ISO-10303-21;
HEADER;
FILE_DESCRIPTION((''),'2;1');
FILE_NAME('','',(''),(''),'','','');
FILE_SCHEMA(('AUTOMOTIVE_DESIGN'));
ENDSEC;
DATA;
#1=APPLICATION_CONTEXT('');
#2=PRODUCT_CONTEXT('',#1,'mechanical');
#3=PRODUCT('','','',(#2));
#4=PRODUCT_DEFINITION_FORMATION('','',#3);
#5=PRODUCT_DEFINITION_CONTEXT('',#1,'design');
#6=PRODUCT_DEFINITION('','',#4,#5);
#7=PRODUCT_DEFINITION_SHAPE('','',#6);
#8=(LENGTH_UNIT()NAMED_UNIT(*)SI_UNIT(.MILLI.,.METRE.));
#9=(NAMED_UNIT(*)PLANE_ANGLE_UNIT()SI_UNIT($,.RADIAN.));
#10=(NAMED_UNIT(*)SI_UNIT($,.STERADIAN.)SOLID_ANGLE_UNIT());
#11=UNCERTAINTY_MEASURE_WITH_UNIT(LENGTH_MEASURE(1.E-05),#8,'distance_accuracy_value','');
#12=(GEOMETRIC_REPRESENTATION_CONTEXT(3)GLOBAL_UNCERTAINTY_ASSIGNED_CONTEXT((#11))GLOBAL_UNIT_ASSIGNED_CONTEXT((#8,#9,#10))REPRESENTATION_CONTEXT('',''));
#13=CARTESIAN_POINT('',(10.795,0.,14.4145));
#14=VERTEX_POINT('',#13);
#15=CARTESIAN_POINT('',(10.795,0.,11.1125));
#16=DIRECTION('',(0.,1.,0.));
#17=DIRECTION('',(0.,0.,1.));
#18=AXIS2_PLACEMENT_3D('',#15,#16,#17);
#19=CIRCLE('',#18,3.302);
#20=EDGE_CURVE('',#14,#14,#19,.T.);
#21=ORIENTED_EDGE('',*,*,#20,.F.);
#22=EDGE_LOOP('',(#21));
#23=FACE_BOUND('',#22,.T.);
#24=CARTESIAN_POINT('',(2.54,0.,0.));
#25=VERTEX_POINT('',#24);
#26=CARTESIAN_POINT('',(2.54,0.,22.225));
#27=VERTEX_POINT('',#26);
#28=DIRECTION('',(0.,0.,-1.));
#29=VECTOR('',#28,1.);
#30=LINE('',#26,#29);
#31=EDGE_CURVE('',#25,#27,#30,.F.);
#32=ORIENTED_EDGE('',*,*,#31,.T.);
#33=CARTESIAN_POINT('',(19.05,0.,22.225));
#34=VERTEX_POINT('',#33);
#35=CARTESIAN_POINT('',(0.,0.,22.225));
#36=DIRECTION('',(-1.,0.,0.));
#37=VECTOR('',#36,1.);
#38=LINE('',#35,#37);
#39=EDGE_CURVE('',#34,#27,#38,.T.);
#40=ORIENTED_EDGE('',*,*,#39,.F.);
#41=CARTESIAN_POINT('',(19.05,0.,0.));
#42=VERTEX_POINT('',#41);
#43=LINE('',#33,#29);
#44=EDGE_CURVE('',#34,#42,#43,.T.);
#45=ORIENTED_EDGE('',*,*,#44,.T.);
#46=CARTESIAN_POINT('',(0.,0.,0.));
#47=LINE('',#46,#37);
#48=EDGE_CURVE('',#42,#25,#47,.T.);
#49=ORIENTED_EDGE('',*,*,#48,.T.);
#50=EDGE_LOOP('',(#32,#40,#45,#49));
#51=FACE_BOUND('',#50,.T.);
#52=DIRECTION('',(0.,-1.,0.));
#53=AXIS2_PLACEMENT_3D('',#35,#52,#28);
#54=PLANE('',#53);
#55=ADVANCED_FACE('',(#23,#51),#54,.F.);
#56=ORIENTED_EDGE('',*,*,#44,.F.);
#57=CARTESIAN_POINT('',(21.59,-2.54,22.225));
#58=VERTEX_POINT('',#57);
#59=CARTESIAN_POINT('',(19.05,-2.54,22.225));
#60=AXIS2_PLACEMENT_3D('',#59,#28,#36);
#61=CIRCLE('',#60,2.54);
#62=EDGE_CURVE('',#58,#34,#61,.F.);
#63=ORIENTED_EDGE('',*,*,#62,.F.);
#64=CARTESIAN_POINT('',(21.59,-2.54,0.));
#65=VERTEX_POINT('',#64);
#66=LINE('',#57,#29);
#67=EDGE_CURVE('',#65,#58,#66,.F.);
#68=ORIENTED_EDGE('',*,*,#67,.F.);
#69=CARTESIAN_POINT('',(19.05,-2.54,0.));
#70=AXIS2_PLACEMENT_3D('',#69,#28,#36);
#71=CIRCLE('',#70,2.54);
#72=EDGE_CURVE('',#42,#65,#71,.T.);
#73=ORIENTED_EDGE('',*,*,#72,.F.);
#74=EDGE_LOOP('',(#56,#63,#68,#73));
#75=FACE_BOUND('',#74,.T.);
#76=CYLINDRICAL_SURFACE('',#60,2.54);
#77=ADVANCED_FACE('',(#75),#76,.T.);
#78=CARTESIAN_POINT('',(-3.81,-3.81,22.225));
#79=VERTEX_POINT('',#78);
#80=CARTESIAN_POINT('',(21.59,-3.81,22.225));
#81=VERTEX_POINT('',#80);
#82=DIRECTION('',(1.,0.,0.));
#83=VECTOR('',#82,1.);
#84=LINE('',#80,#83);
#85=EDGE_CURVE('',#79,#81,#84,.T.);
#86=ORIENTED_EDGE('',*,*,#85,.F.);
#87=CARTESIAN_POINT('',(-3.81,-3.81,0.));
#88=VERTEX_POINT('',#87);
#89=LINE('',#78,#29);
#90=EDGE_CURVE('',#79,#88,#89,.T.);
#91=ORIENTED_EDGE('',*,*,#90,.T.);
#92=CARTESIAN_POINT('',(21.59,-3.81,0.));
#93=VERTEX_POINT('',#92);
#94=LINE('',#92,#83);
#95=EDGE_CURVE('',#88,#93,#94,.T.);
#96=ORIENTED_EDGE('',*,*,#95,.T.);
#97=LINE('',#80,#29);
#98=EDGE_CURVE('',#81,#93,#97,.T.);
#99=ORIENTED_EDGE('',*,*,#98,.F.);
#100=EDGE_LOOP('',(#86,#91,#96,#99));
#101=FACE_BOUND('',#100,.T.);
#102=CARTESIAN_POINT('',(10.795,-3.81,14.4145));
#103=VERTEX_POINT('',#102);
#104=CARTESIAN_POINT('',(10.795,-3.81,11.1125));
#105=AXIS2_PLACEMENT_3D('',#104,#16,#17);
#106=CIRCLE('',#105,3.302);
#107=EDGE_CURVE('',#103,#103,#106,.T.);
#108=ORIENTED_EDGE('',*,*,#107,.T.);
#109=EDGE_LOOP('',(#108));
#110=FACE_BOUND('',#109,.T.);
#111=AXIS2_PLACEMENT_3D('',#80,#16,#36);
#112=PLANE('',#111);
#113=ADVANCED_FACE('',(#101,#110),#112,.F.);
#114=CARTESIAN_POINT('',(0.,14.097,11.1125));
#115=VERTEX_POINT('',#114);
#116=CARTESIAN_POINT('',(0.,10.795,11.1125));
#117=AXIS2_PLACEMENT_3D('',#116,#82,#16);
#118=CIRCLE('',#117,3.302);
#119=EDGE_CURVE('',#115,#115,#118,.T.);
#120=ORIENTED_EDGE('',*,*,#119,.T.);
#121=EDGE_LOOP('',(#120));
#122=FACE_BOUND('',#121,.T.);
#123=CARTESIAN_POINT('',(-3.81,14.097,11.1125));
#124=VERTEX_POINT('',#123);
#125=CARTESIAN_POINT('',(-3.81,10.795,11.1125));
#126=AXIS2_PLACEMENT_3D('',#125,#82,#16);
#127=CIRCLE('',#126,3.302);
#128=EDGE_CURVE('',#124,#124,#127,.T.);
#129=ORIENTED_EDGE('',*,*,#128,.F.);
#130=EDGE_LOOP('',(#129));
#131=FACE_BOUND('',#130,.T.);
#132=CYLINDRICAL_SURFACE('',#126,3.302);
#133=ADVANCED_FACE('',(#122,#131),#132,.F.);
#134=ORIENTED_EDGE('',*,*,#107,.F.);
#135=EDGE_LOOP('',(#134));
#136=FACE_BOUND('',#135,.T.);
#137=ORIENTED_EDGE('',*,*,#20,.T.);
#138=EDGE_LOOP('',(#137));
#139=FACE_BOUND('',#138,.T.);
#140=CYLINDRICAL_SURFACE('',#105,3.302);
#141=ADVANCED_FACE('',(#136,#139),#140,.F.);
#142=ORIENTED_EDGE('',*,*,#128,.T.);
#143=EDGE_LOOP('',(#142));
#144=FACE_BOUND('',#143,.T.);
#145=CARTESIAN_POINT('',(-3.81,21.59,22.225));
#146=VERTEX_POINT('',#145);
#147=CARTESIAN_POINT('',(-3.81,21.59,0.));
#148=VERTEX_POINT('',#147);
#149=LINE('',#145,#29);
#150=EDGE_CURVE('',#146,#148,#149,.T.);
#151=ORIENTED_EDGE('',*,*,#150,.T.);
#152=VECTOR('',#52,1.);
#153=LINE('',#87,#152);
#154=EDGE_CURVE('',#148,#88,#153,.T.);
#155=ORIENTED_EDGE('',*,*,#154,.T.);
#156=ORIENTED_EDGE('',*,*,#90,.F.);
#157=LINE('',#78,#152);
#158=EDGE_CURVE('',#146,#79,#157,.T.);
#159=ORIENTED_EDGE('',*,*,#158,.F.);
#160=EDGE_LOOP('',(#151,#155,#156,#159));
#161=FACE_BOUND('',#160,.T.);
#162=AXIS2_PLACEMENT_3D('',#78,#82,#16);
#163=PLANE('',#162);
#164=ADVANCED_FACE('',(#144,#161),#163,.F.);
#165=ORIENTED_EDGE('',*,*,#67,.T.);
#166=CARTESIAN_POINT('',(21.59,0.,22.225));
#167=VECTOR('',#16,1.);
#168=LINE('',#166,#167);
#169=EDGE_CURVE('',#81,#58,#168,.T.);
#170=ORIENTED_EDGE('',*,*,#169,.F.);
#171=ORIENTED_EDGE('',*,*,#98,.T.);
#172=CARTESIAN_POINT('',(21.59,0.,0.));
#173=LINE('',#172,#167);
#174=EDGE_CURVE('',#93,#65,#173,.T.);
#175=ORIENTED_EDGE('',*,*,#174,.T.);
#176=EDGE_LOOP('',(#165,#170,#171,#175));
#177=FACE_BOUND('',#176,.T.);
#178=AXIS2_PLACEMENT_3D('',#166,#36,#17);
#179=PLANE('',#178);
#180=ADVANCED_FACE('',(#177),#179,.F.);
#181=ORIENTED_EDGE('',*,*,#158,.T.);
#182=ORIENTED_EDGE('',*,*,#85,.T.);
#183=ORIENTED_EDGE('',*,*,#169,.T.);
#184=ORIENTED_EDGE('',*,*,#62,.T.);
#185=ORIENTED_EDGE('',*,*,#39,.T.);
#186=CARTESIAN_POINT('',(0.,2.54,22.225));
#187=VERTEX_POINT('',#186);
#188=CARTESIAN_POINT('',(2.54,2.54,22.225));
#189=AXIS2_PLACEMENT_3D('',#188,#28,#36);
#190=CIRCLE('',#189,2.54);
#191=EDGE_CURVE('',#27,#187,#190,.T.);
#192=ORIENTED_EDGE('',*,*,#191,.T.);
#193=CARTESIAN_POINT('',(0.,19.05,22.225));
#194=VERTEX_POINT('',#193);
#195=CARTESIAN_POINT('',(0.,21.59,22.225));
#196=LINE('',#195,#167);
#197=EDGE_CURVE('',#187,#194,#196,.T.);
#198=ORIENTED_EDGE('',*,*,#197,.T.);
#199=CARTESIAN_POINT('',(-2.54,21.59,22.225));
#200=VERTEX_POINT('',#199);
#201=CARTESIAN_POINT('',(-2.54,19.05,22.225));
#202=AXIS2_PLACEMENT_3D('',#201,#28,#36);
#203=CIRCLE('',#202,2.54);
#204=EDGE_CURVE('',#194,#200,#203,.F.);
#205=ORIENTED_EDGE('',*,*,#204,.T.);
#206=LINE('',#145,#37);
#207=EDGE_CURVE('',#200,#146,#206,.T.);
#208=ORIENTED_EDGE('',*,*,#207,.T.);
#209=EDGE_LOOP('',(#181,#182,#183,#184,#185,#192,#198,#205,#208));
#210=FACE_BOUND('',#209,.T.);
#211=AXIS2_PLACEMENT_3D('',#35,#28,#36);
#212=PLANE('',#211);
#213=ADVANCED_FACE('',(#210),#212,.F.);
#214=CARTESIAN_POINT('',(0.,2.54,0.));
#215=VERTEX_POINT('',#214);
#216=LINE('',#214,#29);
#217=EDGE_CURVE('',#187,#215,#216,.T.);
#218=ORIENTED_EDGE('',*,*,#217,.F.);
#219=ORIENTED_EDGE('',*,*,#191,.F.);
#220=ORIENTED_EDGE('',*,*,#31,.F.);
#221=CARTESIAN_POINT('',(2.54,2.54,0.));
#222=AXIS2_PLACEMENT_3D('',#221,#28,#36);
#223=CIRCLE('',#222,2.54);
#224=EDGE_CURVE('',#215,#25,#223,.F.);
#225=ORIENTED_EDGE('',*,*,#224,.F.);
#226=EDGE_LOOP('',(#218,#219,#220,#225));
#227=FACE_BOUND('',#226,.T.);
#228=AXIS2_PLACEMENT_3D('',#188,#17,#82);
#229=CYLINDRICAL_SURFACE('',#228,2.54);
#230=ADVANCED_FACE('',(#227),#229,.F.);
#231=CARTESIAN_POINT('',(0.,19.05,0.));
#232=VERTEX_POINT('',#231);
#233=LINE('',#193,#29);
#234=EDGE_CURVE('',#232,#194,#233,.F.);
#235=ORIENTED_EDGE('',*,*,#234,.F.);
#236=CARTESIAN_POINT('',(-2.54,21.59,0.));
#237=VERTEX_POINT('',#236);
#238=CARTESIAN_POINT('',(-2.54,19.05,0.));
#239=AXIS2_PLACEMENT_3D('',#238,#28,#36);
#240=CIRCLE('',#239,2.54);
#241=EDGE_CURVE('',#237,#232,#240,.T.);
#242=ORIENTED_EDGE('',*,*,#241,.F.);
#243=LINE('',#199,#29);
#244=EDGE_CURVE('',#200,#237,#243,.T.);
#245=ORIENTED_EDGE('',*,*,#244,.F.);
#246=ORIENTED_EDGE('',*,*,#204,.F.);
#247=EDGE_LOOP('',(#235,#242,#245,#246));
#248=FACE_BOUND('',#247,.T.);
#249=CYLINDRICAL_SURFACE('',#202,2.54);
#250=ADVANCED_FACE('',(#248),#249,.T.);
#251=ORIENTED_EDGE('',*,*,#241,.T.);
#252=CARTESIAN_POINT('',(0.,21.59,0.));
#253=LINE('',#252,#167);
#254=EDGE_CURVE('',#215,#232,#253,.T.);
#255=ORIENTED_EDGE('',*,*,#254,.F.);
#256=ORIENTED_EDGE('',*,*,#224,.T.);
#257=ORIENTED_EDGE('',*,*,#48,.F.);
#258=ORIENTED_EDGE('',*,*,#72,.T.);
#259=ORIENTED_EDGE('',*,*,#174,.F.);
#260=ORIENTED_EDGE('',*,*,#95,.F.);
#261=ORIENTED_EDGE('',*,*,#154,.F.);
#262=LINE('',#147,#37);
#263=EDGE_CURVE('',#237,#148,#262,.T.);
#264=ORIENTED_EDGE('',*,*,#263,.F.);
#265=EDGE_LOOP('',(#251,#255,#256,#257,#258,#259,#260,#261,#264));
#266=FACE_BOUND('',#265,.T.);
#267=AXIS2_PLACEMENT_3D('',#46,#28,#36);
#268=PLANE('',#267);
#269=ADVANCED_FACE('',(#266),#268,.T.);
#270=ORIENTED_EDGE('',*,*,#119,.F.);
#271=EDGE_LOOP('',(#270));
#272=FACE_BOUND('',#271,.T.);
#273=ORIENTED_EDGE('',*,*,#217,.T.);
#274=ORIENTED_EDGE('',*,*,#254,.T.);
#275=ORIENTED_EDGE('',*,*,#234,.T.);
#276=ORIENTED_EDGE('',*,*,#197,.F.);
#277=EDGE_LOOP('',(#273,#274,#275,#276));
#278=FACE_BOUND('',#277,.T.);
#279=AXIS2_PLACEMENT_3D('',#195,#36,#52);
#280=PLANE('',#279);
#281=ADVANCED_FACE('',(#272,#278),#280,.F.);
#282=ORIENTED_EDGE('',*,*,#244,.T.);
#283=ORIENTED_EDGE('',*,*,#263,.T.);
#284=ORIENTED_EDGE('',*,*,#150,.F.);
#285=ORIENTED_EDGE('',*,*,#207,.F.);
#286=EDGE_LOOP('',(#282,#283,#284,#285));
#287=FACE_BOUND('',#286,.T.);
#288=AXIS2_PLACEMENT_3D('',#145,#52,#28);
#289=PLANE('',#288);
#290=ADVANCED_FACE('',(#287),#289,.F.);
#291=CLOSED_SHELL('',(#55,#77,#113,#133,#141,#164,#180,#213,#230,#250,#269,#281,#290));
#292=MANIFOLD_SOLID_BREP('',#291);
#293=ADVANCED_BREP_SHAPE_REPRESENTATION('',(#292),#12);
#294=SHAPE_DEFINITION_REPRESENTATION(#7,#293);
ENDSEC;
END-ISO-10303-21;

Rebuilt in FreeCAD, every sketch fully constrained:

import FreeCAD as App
import Part
import Sketcher

V = App.Vector
Q = App.Units.Quantity


def edges_at(feature, points):
    """Names of the edges that pass closest to the given points."""
    edges = feature.Shape.Edges
    near = lambda p: min(range(len(edges)), key=lambda i: edges[i].distToShape(Part.Vertex(*p))[0])
    return sorted({f"Edge{near(p) + 1}" for p in points})


def add_polygon(sketch, points):
    """Adds a closed chain of lines whose ends are joined by coincident constraints."""
    first, n = sketch.GeometryCount, len(points)
    for a, b in zip(points, points[1:] + points[:1]):
        sketch.addGeometry(Part.LineSegment(App.Vector(*a, 0), App.Vector(*b, 0)), False)
    for i in range(n):
        sketch.addConstraint(Sketcher.Constraint("Coincident", first + i, 2, first + (i + 1) % n, 1))

doc = App.newDocument("Part")
body = doc.addObject("PartDesign::Body", "Body")

sketch1 = body.newObject("Sketcher::SketchObject", "Sketch")
sketch1.AttachmentSupport = (doc.getObject("XY_Plane"), [""])
sketch1.MapMode = "FlatFace"
add_polygon(sketch1, [(0, 0), (0, 21.59), (-3.81, 21.59), (-3.81, -3.81), (21.59, -3.81), (21.59, 0)])
sketch1.addConstraint(Sketcher.Constraint("Vertical", 0))
sketch1.addConstraint(Sketcher.Constraint("Horizontal", 1))
sketch1.addConstraint(Sketcher.Constraint("Vertical", 2))
sketch1.addConstraint(Sketcher.Constraint("Horizontal", 3))
sketch1.addConstraint(Sketcher.Constraint("Vertical", 4))
sketch1.addConstraint(Sketcher.Constraint("Horizontal", 5))
sketch1.addConstraint(Sketcher.Constraint("Coincident", 5, 2, -1, 1))
sketch1.addConstraint(Sketcher.Constraint("Equal", 5, 0))
sketch1.addConstraint(Sketcher.Constraint("Equal", 3, 2))
sketch1.addConstraint(Sketcher.Constraint("DistanceX", 3, 1, 3, 2, Q("1 in")))
sketch1.addConstraint(Sketcher.Constraint("DistanceX", 1, 2, 1, 1, Q("0.15 in")))
pad1 = body.newObject("PartDesign::Pad", "Pad")
pad1.Profile = sketch1
pad1.Length = Q("0.875 in")

sketch2 = body.newObject("Sketcher::SketchObject", "Sketch001")
sketch2.AttachmentSupport = (doc.getObject("XZ_Plane"), [""])
sketch2.MapMode = "FlatFace"
sketch2.addGeometry(Part.Circle(V(10.795, 11.1125, 0), V(0, 0, 1), 3.302), False)
sketch2.addConstraint(Sketcher.Constraint("Diameter", 0, Q("0.26 in")))
sketch2.addConstraint(Sketcher.Constraint("DistanceX", -1, 1, 0, 3, Q("0.425 in")))
sketch2.addConstraint(Sketcher.Constraint("DistanceY", -1, 1, 0, 3, Q("0.4375 in")))
pocket1 = body.newObject("PartDesign::Pocket", "Pocket")
pocket1.Profile = sketch2
pocket1.Type = "ThroughAll"
pocket1.Reversed = True

sketch3 = body.newObject("Sketcher::SketchObject", "Sketch002")
sketch3.AttachmentSupport = (doc.getObject("YZ_Plane"), [""])
sketch3.MapMode = "FlatFace"
sketch3.addGeometry(Part.Circle(V(10.795, 11.1125, 0), V(0, 0, 1), 3.302), False)
sketch3.addConstraint(Sketcher.Constraint("Diameter", 0, Q("0.26 in")))
sketch3.addConstraint(Sketcher.Constraint("DistanceX", -1, 1, 0, 3, Q("0.425 in")))
sketch3.addConstraint(Sketcher.Constraint("DistanceY", -1, 1, 0, 3, Q("0.4375 in")))
pocket2 = body.newObject("PartDesign::Pocket", "Pocket001")
pocket2.Profile = sketch3
pocket2.Type = "ThroughAll"
doc.recompute()

fillet = body.newObject("PartDesign::Fillet", "Fillet")
fillet.Base = (pocket2, edges_at(pocket2, [(0, 21.59, 11.113), (0, 0, 11.113), (21.59, 0, 11.113)]))
fillet.Radius = Q("0.1 in")

doc.recompute()
